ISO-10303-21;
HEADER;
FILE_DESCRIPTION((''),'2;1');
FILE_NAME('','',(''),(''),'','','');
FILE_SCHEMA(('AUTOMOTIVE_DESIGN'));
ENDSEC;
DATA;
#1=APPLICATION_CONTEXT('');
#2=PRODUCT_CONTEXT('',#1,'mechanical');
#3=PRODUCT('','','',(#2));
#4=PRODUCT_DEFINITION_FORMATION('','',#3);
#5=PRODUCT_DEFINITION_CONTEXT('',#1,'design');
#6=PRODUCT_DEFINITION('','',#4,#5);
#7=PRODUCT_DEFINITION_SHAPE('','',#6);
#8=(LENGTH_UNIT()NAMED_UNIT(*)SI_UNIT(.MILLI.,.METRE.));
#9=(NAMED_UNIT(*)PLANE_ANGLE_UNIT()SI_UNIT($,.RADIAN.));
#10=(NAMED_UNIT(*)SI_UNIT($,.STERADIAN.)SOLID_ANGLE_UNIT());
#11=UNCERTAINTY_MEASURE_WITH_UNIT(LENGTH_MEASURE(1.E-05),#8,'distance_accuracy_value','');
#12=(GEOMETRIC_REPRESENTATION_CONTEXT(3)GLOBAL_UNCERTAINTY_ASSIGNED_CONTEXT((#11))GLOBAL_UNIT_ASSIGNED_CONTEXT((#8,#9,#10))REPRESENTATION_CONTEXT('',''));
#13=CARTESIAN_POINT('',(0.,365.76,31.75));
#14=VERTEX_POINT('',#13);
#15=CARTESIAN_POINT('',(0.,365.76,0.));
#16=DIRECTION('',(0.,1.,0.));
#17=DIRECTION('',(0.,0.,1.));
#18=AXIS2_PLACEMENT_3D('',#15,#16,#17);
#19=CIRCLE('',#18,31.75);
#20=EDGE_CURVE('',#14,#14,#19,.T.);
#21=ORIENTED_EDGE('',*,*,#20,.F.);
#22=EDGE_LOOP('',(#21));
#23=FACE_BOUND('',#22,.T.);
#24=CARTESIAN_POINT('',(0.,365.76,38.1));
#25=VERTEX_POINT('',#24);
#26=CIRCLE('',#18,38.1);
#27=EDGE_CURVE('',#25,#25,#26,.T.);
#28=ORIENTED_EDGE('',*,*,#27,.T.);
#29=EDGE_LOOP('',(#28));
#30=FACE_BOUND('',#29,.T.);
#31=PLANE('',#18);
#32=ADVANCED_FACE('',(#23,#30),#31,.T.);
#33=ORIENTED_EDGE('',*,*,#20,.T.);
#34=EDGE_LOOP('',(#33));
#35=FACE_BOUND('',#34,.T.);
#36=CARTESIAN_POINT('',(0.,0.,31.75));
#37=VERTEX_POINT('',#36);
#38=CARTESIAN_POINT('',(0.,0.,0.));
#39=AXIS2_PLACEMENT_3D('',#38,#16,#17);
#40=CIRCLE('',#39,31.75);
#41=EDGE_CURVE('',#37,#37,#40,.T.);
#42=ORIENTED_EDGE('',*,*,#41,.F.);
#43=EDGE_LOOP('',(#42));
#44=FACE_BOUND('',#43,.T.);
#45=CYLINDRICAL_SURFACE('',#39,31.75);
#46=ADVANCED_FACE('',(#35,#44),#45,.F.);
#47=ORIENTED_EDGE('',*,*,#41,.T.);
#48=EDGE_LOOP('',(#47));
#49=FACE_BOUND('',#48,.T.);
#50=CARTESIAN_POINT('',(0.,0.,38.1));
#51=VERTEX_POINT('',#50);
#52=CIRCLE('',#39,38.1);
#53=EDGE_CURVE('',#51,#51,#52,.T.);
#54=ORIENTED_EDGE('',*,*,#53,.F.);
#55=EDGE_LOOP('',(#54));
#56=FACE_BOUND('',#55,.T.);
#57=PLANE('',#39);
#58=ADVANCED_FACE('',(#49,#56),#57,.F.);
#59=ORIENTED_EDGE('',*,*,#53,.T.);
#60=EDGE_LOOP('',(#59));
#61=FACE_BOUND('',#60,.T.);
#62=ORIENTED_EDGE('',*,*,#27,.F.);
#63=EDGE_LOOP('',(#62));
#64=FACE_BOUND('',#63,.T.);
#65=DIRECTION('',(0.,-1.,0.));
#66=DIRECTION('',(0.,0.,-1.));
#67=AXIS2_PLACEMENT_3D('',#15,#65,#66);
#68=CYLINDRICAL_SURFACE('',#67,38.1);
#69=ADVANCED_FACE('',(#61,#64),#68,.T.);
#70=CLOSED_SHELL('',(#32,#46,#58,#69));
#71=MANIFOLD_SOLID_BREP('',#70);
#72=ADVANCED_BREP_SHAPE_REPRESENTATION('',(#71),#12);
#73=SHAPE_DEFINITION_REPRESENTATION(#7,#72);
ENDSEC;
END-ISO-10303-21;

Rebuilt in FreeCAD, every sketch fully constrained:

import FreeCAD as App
import Part
import Sketcher
from FreeCAD import Vector
Q = App.Units.Quantity

doc = App.newDocument("Part")
body = doc.addObject("PartDesign::Body", "Body")

sketch1 = body.newObject("Sketcher::SketchObject", "Sketch")
sketch1.AttachmentSupport = (doc.getObject("XZ_Plane"), [""])
sketch1.MapMode = "FlatFace"
sketch1.addGeometry(Part.Circle(Vector(0, 0, 0), Vector(0, 0, 1), 38), False)
sketch1.addConstraint(Sketcher.Constraint("Coincident", 0, 3, -1, 1))
sketch1.addConstraint(Sketcher.Constraint("Diameter", 0, Q("3 in")))
pad1 = body.newObject("PartDesign::Pad", "Pad")
pad1.Profile = sketch1
pad1.Length = Q("14.4 in")
pad1.Reversed = True

sketch2 = body.newObject("Sketcher::SketchObject", "Sketch001")
sketch2.AttachmentSupport = (doc.getObject("XZ_Plane"), [""])
sketch2.MapMode = "FlatFace"
sketch2.AttachmentOffset = App.Placement(Vector(0, 0, -14.4 * 25.4), App.Rotation())
sketch2.addGeometry(Part.Circle(Vector(0, 0, 0), Vector(0, 0, 1), 32), False)
sketch2.addConstraint(Sketcher.Constraint("Coincident", 0, 3, -1, 1))
sketch2.addConstraint(Sketcher.Constraint("Diameter", 0, Q("2.5 in")))
pocket1 = body.newObject("PartDesign::Pocket", "Pocket")
pocket1.Profile = sketch2
pocket1.Type = "ThroughAll"
pocket1.Reversed = True

doc.recompute()
